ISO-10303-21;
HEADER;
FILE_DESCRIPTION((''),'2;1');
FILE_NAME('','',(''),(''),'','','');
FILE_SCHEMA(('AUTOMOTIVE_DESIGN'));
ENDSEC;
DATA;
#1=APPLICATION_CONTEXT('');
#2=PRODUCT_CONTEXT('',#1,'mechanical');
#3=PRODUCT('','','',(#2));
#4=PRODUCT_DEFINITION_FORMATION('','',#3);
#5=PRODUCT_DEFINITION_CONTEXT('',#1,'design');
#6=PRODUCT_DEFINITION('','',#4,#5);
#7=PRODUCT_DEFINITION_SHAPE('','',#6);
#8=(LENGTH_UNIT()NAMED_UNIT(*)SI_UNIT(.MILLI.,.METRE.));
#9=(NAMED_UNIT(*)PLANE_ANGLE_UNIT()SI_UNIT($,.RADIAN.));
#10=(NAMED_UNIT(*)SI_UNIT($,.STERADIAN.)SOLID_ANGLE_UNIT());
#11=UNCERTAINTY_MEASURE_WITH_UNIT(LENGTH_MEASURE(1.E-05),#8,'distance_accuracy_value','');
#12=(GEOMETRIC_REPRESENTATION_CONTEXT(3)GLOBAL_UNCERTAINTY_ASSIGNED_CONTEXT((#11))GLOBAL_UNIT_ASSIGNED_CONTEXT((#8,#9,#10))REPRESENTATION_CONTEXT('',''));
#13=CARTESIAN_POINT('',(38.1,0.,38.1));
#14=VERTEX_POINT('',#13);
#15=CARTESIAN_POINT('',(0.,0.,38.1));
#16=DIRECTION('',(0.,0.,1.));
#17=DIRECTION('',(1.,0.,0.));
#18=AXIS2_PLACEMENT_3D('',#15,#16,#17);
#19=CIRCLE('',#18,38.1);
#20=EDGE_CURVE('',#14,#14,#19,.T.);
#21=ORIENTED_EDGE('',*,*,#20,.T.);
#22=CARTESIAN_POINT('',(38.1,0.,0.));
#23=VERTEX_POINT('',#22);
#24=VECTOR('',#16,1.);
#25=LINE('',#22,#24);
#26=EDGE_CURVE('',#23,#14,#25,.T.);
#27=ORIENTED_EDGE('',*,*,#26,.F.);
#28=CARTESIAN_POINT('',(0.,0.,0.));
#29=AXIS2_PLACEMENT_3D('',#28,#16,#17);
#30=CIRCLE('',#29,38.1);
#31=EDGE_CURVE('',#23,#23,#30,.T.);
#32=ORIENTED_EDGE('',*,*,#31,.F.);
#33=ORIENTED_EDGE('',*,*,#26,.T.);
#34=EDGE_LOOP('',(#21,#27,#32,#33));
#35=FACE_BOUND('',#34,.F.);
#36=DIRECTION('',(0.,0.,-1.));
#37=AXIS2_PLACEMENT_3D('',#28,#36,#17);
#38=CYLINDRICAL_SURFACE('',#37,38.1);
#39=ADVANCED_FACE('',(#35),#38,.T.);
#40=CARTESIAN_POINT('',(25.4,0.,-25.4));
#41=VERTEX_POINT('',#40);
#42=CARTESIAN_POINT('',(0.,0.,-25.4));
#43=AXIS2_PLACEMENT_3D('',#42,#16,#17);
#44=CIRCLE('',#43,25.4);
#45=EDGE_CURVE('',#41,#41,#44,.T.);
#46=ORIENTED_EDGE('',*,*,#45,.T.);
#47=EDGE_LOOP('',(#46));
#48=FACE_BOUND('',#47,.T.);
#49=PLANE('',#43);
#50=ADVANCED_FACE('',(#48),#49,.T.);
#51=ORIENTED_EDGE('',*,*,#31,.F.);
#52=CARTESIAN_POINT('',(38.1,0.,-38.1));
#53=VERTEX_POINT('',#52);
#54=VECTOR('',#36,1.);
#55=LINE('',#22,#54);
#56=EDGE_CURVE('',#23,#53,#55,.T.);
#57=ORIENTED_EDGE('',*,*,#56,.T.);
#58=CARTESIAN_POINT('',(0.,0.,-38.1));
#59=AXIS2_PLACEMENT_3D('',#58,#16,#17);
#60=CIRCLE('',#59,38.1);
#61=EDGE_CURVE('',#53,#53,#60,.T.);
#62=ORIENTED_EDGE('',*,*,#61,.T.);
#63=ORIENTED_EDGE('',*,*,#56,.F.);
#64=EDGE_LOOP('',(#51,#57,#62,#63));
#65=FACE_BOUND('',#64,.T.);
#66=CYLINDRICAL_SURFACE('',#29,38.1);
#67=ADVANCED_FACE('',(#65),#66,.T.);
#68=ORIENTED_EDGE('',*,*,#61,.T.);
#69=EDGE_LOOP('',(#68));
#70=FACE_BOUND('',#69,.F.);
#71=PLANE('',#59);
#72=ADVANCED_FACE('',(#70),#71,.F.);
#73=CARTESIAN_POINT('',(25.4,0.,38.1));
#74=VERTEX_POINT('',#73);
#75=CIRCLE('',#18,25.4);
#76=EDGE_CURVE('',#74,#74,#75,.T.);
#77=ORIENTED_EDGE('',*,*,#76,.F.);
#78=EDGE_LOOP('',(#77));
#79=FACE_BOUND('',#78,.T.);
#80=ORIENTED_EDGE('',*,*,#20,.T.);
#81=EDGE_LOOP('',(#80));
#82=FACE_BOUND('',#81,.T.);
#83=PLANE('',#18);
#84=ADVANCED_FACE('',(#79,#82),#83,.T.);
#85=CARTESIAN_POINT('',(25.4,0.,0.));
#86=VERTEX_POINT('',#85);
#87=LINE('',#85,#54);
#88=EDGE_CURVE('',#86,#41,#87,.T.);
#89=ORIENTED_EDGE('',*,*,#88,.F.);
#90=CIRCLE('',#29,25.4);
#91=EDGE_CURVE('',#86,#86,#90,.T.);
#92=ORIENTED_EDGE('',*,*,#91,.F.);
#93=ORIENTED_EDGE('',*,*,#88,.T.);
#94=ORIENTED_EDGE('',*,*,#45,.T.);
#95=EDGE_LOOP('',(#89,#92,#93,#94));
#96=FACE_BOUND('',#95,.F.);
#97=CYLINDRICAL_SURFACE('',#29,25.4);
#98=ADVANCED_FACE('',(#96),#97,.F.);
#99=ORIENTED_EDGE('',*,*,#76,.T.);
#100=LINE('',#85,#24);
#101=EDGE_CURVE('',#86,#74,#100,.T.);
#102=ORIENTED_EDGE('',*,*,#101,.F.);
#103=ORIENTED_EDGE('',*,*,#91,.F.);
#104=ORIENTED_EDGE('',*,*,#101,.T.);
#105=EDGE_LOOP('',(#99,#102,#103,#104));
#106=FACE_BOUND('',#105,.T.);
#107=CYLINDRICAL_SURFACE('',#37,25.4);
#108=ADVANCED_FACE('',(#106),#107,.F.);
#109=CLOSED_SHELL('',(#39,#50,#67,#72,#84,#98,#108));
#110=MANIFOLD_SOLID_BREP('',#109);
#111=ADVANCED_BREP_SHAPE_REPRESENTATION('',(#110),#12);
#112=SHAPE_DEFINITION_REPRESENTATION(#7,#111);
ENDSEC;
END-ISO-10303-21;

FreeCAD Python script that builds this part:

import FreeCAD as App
import Part
import Sketcher
from FreeCAD import Vector
Q = App.Units.Quantity


def faces_at(feature, points):
    """Names of the faces that lie closest to the given points."""
    faces = feature.Shape.Faces
    near = lambda p: min(range(len(faces)), key=lambda i: faces[i].distToShape(Part.Vertex(*p))[0])
    return sorted({f"Face{near(p) + 1}" for p in points})

doc = App.newDocument("Part")
body = doc.addObject("PartDesign::Body", "Body")

# Sketch on XY plane
sketch1 = body.newObject("Sketcher::SketchObject", "Sketch")
sketch1.AttachmentSupport = (doc.getObject("XY_Plane"), [""])
sketch1.MapMode = "FlatFace"
sketch1.addGeometry(Part.Circle(Vector(0, 0, 0), Vector(0, 0, 1), 38.1), False)
sketch1.addConstraint(Sketcher.Constraint("Coincident", 0, 3, -1, 1))
sketch1.addConstraint(Sketcher.Constraint("Diameter", 0, Q("3 in")))
pad1 = body.newObject("PartDesign::Pad", "Pad")
pad1.Profile = sketch1
pad1.Length = Q("1.5 in")
pad1.Reversed = True

# Sketch on XY plane
sketch2 = body.newObject("Sketcher::SketchObject", "Sketch001")
sketch2.AttachmentSupport = (doc.getObject("XY_Plane"), [""])
sketch2.MapMode = "FlatFace"
sketch2.addGeometry(Part.Circle(Vector(0, 0, 0), Vector(0, 0, 1), 38.1), False)
sketch2.addConstraint(Sketcher.Constraint("Coincident", 0, 3, -1, 1))
sketch2.addConstraint(Sketcher.Constraint("Diameter", 0, Q("3 in")))
pad2 = body.newObject("PartDesign::Pad", "Pad001")
pad2.Profile = sketch2
pad2.Length = Q("1.5 in")
doc.recompute()

thickness = body.newObject("PartDesign::Thickness", "Thickness")
thickness.Base = (pad2, faces_at(pad2, [(0, 0, 38.1)]))
thickness.Value = Q("0.5 in")
thickness.Reversed = True
thickness.Join = "Arc"

doc.recompute()
